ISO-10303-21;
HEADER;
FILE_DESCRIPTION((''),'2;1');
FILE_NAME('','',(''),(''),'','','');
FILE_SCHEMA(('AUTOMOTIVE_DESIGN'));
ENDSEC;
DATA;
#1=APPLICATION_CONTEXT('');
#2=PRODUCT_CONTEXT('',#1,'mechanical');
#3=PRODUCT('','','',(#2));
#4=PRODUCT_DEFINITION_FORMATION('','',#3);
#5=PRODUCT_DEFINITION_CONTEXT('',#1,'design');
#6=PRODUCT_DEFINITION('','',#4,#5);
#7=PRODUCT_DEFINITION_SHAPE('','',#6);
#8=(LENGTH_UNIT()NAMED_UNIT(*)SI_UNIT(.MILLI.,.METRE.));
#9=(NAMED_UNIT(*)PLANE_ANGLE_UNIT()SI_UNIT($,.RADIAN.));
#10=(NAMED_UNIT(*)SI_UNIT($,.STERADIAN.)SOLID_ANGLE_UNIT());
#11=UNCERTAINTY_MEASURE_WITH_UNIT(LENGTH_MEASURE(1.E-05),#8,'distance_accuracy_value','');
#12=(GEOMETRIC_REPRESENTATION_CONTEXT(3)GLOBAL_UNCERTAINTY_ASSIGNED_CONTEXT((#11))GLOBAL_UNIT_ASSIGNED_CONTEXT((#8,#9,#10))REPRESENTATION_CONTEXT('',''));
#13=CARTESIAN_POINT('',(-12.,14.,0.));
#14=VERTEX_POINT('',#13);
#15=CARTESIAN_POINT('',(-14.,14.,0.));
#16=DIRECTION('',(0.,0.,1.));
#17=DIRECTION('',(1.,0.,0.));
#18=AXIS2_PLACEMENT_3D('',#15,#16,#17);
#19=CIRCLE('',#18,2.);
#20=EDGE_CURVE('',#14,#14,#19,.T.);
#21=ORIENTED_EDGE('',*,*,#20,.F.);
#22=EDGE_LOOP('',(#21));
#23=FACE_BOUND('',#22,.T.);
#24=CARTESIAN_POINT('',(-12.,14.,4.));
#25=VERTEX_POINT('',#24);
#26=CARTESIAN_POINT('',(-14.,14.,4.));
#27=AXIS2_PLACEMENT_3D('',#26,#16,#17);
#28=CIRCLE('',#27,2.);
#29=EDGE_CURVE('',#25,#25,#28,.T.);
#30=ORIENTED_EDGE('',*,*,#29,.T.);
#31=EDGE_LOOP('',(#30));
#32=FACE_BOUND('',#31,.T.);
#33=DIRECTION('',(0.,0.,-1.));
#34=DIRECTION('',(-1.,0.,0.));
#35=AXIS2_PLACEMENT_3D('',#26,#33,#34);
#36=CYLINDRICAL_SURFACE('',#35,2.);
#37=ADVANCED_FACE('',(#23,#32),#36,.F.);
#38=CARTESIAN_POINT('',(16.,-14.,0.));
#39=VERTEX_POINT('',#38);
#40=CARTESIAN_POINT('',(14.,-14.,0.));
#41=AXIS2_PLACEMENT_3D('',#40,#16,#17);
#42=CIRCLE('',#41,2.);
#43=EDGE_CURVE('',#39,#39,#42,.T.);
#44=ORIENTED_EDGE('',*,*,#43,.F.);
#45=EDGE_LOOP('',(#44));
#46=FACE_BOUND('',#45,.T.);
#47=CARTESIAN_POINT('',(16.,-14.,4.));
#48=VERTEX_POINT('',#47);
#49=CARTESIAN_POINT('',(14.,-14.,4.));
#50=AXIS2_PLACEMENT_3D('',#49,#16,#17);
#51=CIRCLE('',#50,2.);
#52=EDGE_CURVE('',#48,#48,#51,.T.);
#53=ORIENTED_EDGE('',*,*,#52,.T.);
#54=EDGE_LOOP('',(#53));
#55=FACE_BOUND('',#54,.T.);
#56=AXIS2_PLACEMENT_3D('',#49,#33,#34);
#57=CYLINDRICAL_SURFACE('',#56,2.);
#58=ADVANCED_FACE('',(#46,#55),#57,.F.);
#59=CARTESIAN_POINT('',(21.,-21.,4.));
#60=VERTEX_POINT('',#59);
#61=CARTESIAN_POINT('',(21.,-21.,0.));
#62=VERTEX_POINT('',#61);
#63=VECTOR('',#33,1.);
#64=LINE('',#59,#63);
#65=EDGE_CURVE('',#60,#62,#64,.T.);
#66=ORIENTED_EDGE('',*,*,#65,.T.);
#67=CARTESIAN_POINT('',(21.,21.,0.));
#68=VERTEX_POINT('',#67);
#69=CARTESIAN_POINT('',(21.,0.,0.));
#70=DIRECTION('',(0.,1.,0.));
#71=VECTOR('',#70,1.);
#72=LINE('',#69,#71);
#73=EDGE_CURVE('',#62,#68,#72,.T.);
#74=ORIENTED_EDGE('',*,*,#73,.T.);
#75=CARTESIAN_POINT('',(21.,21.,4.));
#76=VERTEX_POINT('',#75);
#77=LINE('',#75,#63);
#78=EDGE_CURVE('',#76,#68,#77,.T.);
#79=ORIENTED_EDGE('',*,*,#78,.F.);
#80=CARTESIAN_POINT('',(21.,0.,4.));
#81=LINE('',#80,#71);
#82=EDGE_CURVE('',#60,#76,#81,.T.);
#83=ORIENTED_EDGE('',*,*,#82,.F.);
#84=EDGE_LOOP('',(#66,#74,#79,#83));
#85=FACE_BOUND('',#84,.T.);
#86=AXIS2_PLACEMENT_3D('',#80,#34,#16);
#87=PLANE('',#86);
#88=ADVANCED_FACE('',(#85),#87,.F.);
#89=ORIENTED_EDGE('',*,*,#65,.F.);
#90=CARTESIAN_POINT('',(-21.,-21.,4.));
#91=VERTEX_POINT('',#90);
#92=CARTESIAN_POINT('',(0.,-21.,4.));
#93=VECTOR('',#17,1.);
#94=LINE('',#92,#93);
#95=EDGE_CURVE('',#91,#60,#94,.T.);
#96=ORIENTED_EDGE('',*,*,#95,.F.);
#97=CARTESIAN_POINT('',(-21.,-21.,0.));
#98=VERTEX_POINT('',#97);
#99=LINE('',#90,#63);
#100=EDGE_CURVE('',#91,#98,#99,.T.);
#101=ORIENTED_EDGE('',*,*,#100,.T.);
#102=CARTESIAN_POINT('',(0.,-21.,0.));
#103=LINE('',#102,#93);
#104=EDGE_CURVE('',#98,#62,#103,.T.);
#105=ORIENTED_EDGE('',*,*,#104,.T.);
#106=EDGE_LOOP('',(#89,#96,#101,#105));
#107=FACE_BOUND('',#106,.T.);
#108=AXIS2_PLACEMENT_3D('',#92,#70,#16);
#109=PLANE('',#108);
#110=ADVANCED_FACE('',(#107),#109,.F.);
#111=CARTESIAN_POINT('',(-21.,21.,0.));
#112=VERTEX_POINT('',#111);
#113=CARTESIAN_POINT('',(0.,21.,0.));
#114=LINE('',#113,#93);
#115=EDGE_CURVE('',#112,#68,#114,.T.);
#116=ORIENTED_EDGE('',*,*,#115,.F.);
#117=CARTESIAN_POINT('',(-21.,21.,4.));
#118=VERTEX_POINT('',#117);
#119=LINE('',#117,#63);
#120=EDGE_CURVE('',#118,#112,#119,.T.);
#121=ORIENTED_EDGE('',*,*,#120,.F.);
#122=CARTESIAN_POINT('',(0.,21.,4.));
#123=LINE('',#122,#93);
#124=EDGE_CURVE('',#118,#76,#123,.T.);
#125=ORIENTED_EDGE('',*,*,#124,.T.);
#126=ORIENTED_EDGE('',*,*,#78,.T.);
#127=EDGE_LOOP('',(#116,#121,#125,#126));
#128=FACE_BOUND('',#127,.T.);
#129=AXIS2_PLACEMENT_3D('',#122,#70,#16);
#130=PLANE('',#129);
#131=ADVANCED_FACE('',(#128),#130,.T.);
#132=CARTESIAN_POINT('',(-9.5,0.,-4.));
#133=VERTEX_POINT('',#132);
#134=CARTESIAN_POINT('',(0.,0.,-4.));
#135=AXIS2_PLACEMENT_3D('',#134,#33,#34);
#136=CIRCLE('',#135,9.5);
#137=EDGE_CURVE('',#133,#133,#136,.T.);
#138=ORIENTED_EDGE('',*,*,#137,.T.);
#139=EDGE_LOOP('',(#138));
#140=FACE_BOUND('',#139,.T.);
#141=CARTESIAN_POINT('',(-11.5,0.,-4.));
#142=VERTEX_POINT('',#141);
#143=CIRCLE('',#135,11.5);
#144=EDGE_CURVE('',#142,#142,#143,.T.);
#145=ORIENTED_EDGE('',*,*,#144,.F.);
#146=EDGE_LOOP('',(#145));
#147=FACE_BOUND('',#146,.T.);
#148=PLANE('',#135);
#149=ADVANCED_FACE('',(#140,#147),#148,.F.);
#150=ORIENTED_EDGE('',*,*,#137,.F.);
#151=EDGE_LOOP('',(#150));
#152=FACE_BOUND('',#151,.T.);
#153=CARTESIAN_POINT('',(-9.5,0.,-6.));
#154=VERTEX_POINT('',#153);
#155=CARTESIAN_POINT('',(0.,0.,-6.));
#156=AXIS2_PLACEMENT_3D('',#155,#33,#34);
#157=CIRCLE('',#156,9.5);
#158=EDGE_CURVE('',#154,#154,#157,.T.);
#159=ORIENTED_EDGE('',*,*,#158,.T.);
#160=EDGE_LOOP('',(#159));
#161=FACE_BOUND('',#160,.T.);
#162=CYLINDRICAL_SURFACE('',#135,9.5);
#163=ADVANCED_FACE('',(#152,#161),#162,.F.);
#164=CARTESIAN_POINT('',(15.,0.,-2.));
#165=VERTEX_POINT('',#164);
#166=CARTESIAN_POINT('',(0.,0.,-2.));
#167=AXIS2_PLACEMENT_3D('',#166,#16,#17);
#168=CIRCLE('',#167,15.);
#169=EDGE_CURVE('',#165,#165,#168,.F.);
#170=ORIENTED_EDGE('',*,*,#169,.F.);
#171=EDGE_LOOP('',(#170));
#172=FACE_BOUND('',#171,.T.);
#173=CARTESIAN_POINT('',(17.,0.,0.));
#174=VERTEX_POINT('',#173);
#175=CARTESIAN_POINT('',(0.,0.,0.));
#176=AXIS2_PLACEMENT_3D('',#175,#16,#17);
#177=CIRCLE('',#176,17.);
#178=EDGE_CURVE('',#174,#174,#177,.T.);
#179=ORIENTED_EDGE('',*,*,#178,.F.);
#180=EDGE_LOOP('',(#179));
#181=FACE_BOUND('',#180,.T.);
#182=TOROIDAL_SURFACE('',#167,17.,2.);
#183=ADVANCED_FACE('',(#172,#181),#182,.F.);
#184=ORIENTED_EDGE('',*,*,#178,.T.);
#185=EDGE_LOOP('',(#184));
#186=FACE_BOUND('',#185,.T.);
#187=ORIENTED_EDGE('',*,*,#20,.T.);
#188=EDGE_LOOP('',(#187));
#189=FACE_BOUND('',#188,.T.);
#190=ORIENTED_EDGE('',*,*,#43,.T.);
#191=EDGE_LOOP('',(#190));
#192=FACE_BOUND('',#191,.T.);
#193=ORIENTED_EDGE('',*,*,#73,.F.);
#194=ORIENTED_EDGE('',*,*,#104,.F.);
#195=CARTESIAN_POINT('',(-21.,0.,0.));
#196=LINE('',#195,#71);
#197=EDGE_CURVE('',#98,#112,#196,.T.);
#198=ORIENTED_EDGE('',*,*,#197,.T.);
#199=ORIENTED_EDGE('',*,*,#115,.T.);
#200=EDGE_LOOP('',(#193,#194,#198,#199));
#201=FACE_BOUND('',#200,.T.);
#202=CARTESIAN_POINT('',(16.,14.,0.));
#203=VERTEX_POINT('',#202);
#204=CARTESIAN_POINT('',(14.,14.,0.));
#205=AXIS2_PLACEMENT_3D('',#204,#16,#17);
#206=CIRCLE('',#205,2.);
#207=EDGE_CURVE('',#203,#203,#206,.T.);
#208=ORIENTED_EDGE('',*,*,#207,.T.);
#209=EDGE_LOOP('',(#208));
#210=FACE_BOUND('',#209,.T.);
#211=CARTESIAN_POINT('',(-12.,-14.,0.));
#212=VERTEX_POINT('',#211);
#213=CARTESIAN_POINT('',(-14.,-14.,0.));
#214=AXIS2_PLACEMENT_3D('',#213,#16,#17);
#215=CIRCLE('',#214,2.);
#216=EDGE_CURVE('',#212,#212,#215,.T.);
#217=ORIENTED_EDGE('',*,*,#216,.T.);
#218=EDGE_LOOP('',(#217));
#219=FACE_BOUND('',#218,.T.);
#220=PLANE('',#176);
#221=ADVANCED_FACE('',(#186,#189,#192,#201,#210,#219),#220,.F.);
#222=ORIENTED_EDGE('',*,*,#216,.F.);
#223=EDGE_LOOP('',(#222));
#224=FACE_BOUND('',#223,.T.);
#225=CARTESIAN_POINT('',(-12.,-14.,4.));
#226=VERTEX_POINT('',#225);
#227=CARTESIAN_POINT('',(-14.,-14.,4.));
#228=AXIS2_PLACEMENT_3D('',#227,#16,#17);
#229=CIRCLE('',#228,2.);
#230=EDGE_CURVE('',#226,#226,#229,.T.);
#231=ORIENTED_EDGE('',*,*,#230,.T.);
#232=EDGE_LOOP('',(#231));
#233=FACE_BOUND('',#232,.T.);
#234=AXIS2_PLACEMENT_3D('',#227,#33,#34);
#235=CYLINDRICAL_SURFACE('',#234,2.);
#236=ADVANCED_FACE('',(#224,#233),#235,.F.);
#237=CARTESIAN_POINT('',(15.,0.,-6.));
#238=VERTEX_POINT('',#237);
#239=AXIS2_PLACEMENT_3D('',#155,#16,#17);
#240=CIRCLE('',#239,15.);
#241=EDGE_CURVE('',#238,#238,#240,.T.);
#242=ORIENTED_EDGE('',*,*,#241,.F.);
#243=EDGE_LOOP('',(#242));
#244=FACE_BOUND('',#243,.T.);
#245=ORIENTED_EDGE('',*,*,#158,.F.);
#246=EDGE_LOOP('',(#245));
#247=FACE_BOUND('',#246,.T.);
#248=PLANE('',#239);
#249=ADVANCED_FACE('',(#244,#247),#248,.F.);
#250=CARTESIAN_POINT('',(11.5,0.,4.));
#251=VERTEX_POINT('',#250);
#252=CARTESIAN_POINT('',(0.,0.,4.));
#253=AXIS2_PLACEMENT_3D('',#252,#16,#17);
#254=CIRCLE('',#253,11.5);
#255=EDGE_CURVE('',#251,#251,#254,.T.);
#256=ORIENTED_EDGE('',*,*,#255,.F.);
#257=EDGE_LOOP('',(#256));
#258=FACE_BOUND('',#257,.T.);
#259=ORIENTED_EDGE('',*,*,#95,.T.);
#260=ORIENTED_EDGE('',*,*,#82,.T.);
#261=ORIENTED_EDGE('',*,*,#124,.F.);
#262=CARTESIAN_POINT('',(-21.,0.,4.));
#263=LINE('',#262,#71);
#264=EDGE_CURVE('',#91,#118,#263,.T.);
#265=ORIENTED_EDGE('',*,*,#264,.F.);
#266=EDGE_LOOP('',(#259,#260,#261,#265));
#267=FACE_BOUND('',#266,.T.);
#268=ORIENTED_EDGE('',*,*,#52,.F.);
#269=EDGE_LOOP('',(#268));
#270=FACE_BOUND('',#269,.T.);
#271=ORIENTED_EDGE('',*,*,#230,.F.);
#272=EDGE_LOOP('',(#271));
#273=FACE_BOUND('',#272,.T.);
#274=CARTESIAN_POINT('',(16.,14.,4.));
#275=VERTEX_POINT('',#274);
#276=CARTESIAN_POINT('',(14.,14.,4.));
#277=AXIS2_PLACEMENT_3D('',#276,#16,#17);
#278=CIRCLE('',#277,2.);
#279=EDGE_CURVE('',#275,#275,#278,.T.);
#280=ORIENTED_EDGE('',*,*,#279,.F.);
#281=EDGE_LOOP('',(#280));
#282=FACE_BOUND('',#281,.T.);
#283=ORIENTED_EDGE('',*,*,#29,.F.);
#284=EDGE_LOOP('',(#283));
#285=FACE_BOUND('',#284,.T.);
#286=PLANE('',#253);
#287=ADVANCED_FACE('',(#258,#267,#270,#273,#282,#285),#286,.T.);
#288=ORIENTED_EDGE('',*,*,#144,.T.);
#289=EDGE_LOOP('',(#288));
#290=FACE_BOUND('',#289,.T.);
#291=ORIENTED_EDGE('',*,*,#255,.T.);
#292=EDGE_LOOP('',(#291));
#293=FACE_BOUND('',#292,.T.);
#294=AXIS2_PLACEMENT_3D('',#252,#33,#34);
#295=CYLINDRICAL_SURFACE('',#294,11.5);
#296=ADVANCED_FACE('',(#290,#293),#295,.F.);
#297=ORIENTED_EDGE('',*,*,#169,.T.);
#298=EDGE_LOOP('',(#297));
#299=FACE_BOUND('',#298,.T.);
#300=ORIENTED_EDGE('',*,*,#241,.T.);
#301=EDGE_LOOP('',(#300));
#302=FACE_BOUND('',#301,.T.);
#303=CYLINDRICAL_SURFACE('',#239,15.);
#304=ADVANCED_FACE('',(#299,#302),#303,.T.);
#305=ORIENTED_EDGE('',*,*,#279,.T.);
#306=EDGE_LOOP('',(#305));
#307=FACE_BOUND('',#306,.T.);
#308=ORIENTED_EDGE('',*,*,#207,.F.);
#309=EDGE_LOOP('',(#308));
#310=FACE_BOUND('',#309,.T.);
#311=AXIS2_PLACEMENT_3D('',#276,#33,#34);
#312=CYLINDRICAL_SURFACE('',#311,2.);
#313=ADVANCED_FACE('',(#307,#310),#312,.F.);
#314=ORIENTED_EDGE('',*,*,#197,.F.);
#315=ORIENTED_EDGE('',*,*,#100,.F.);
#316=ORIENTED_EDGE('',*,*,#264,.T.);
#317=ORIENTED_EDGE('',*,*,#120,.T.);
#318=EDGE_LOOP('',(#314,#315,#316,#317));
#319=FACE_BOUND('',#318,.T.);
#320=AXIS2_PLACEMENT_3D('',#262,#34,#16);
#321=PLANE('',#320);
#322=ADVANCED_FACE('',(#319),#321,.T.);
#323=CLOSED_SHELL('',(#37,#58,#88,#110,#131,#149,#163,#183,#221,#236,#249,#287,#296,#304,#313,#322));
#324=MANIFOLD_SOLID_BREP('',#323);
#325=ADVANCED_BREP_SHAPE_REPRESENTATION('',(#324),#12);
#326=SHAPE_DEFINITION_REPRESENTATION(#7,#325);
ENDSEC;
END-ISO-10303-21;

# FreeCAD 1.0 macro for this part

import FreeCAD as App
import Part
import Sketcher


def edges_at(feature, points):
    """Names of the edges that pass closest to the given points."""
    edges = feature.Shape.Edges
    near = lambda p: min(range(len(edges)), key=lambda i: edges[i].distToShape(Part.Vertex(*p))[0])
    return sorted({f"Edge{near(p) + 1}" for p in points})


def add_polygon(sketch, points):
    """Adds a closed chain of lines whose ends are joined by coincident constraints."""
    first, n = sketch.GeometryCount, len(points)
    for a, b in zip(points, points[1:] + points[:1]):
        sketch.addGeometry(Part.LineSegment(App.Vector(*a, 0), App.Vector(*b, 0)), False)
    for i in range(n):
        sketch.addConstraint(Sketcher.Constraint("Coincident", first + i, 2, first + (i + 1) % n, 1))

doc = App.newDocument("Part")
body = doc.addObject("PartDesign::Body", "Body")

# Sketch on XY plane
sketch1 = body.newObject("Sketcher::SketchObject", "Sketch")
sketch1.AttachmentSupport = (doc.getObject("XY_Plane"), [""])
sketch1.MapMode = "FlatFace"
add_polygon(sketch1, [(-21, 21), (-21, -21), (21, -21), (21, 21)])  # lines 0-3
sketch1.addGeometry(Part.Circle(App.Vector(-14, -14, 0), App.Vector(0, 0, 1), 2), False)  # 4
sketch1.addGeometry(Part.Circle(App.Vector(14, -14, 0), App.Vector(0, 0, 1), 2), False)  # 5
sketch1.addGeometry(Part.Circle(App.Vector(-14, 14, 0), App.Vector(0, 0, 1), 2), False)  # 6
sketch1.addGeometry(Part.Circle(App.Vector(0, 0, 0), App.Vector(0, 0, 1), 11.5), False)  # 7
sketch1.addGeometry(Part.Circle(App.Vector(14, 14, 0), App.Vector(0, 0, 1), 2), False)  # 8
sketch1.addConstraint([
    Sketcher.Constraint("Vertical", 0),
    Sketcher.Constraint("Horizontal", 1),
    Sketcher.Constraint("Vertical", 2),
    Sketcher.Constraint("Horizontal", 3),
    Sketcher.Constraint("Coincident", 7, 3, -1, 1),
    Sketcher.Constraint("Equal", 4, 5),
    Sketcher.Constraint("Equal", 5, 6),
    Sketcher.Constraint("Equal", 6, 8),
    Sketcher.Constraint("Symmetric", 5, 3, 6, 3, -1, 1),
    Sketcher.Constraint("Symmetric", 4, 3, 8, 3, -1, 1),
    Sketcher.Constraint("Symmetric", 0, 2, 2, 2, -1, 1),
    Sketcher.Constraint("Symmetric", 4, 3, 5, 3, -2),
    Sketcher.Constraint("Equal", 3, 0),
    Sketcher.Constraint("Diameter", 4, 4.0),
    Sketcher.Constraint("Diameter", 7, 23.0),
    Sketcher.Constraint("DistanceX", 1, 1, 1, 2, 42.0),
    Sketcher.Constraint("DistanceX", 4, 3, -1, 1, 14.0),
    Sketcher.Constraint("DistanceY", 4, 3, -1, 1, 14.0),
])
pad1 = body.newObject("PartDesign::Pad", "Pad")
pad1.Profile = sketch1
pad1.Length = 4

# Sketch on XY plane
sketch2 = body.newObject("Sketcher::SketchObject", "Sketch001")
sketch2.AttachmentSupport = (doc.getObject("XY_Plane"), [""])
sketch2.MapMode = "FlatFace"
sketch2.addGeometry([
    Part.Circle(App.Vector(0, 0, 0), App.Vector(0, 0, 1), 15),
    Part.Circle(App.Vector(0, 0, 0), App.Vector(0, 0, 1), 12),
], False)
sketch2.addConstraint([
    Sketcher.Constraint("Coincident", 0, 3, -1, 1),
    Sketcher.Constraint("Coincident", 1, 3, -1, 1),
    Sketcher.Constraint("Diameter", 0, 30.0),
    Sketcher.Constraint("Diameter", 1, 23.0),
])
pad2 = body.newObject("PartDesign::Pad", "Pad001")
pad2.Profile = sketch2
pad2.Length = 6
pad2.Reversed = True

# Sketch on XY plane
sketch3 = body.newObject("Sketcher::SketchObject", "Sketch002")
sketch3.AttachmentSupport = (doc.getObject("XY_Plane"), [""])
sketch3.MapMode = "FlatFace"
sketch3.AttachmentOffset = App.Placement(App.Vector(0, 0, -6), App.Rotation())
sketch3.addGeometry([
    Part.Circle(App.Vector(0, 0, 0), App.Vector(0, 0, 1), 12),
    Part.Circle(App.Vector(0, 0, 0), App.Vector(0, 0, 1), 10),
], False)
sketch3.addConstraint([
    Sketcher.Constraint("Coincident", 0, 3, -1, 1),
    Sketcher.Constraint("Coincident", 1, 3, -1, 1),
    Sketcher.Constraint("Diameter", 0, 23.0),
    Sketcher.Constraint("Diameter", 1, 19.0),
])
pad3 = body.newObject("PartDesign::Pad", "Pad002")
pad3.Profile = sketch3
pad3.Length = 2
doc.recompute()

fillet = body.newObject("PartDesign::Fillet", "Fillet")
fillet.Base = (pad3, edges_at(pad3, [(-15, 0, 0)]))
fillet.Radius = 2

doc.recompute()
